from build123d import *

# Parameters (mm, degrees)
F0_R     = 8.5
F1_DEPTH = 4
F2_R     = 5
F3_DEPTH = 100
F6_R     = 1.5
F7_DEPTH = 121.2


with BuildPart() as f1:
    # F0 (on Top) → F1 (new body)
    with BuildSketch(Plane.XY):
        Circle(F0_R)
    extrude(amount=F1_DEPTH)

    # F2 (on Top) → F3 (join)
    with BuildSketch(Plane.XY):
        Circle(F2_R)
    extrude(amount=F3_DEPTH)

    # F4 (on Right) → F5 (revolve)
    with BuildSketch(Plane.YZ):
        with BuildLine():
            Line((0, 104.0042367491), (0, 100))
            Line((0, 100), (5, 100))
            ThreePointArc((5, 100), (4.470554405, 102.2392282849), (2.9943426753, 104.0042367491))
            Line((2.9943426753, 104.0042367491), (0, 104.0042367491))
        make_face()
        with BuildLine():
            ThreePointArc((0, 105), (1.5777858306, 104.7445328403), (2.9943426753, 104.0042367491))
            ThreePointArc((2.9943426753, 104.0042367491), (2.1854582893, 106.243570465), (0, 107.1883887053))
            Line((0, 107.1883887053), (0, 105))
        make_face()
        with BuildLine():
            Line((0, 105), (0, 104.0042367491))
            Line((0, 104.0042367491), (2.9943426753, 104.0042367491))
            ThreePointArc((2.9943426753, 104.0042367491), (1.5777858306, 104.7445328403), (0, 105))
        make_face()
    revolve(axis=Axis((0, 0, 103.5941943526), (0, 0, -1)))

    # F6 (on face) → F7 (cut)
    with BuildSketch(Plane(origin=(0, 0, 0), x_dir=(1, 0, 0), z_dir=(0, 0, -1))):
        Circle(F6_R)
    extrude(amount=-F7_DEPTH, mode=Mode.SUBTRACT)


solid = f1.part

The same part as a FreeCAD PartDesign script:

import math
import FreeCAD as App
import Part
import Sketcher

doc = App.newDocument("Part")
body = doc.addObject("PartDesign::Body", "Body")

# Sketch on XY plane
sketch1 = body.newObject("Sketcher::SketchObject", "Sketch")
sketch1.AttachmentSupport = (doc.getObject("XY_Plane"), [""])
sketch1.MapMode = "FlatFace"
sketch1.addGeometry(Part.Circle(App.Vector(0, 0, 0), App.Vector(0, 0, 1), 8.5), False)
sketch1.addConstraint([
    Sketcher.Constraint("Coincident", 0, 3, -1, 1),
    Sketcher.Constraint("Diameter", 0, 17.0),
])
pad1 = body.newObject("PartDesign::Pad", "Pad")
pad1.Profile = sketch1
pad1.Length = 4

# Sketch on XY plane
sketch2 = body.newObject("Sketcher::SketchObject", "Sketch001")
sketch2.AttachmentSupport = (doc.getObject("XY_Plane"), [""])
sketch2.MapMode = "FlatFace"
sketch2.addGeometry(Part.Circle(App.Vector(0, 0, 0), App.Vector(0, 0, 1), 5), False)
sketch2.addConstraint([
    Sketcher.Constraint("Coincident", 0, 3, -1, 1),
    Sketcher.Constraint("Diameter", 0, 10.0),
])
pad2 = body.newObject("PartDesign::Pad", "Pad001")
pad2.Profile = sketch2
pad2.Length = 100

# Sketch on YZ plane
sketch3 = body.newObject("Sketcher::SketchObject", "Sketch002")
sketch3.AttachmentSupport = (doc.getObject("YZ_Plane"), [""])
sketch3.MapMode = "FlatFace"
sketch3.addGeometry([
    Part.LineSegment(App.Vector(0, 100, 0), App.Vector(5, 100, 0)),
    Part.ArcOfCircle(Part.Circle(App.Vector(0, 100, 0), App.Vector(0, 0, 1), 5), math.radians(0), math.radians(53.211095)),
    Part.ArcOfCircle(Part.Circle(App.Vector(0, 104.188389, 0), App.Vector(0, 0, 1), 3), math.radians(-3.519256), math.radians(90)),
    Part.LineSegment(App.Vector(0, 107.188389, 0), App.Vector(0, 100, 0)),
], False)
sketch3.addConstraint([
    Sketcher.Constraint("Coincident", 0, 2, 1, 1),
    Sketcher.Constraint("Coincident", 1, 2, 2, 1),
    Sketcher.Constraint("Coincident", 2, 2, 3, 1),
    Sketcher.Constraint("Coincident", 3, 2, 0, 1),
    Sketcher.Constraint("Horizontal", 0),
    Sketcher.Constraint("Vertical", 3),
    Sketcher.Constraint("Coincident", 3, 2, 1, 3),
    Sketcher.Constraint("PointOnObject", 1, 3, -2),
    Sketcher.Constraint("PointOnObject", 2, 3, -2),
    Sketcher.Constraint("Radius", 1, 5.0),
    Sketcher.Constraint("Radius", 2, 3.0),
    Sketcher.Constraint("DistanceY", -1, 1, 1, 3, 100.0),
    Sketcher.Constraint("DistanceY", 3, 2, 3, 1, 7.188389),
])
revolution = body.newObject("PartDesign::Revolution", "Revolution")
revolution.Profile = sketch3
revolution.ReferenceAxis = (sketch3, ["V_Axis"])
revolution.Angle = 360

# Sketch on XY plane
sketch4 = body.newObject("Sketcher::SketchObject", "Sketch003")
sketch4.AttachmentSupport = (doc.getObject("XY_Plane"), [""])
sketch4.MapMode = "FlatFace"
sketch4.addGeometry(Part.Circle(App.Vector(0, 0, 0), App.Vector(0, 0, 1), 1.5), False)
sketch4.addConstraint([
    Sketcher.Constraint("Coincident", 0, 3, -1, 1),
    Sketcher.Constraint("Diameter", 0, 3.0),
])
pocket1 = body.newObject("PartDesign::Pocket", "Pocket")
pocket1.Profile = sketch4
pocket1.Length = 121.2
pocket1.Reversed = True

doc.recompute()
